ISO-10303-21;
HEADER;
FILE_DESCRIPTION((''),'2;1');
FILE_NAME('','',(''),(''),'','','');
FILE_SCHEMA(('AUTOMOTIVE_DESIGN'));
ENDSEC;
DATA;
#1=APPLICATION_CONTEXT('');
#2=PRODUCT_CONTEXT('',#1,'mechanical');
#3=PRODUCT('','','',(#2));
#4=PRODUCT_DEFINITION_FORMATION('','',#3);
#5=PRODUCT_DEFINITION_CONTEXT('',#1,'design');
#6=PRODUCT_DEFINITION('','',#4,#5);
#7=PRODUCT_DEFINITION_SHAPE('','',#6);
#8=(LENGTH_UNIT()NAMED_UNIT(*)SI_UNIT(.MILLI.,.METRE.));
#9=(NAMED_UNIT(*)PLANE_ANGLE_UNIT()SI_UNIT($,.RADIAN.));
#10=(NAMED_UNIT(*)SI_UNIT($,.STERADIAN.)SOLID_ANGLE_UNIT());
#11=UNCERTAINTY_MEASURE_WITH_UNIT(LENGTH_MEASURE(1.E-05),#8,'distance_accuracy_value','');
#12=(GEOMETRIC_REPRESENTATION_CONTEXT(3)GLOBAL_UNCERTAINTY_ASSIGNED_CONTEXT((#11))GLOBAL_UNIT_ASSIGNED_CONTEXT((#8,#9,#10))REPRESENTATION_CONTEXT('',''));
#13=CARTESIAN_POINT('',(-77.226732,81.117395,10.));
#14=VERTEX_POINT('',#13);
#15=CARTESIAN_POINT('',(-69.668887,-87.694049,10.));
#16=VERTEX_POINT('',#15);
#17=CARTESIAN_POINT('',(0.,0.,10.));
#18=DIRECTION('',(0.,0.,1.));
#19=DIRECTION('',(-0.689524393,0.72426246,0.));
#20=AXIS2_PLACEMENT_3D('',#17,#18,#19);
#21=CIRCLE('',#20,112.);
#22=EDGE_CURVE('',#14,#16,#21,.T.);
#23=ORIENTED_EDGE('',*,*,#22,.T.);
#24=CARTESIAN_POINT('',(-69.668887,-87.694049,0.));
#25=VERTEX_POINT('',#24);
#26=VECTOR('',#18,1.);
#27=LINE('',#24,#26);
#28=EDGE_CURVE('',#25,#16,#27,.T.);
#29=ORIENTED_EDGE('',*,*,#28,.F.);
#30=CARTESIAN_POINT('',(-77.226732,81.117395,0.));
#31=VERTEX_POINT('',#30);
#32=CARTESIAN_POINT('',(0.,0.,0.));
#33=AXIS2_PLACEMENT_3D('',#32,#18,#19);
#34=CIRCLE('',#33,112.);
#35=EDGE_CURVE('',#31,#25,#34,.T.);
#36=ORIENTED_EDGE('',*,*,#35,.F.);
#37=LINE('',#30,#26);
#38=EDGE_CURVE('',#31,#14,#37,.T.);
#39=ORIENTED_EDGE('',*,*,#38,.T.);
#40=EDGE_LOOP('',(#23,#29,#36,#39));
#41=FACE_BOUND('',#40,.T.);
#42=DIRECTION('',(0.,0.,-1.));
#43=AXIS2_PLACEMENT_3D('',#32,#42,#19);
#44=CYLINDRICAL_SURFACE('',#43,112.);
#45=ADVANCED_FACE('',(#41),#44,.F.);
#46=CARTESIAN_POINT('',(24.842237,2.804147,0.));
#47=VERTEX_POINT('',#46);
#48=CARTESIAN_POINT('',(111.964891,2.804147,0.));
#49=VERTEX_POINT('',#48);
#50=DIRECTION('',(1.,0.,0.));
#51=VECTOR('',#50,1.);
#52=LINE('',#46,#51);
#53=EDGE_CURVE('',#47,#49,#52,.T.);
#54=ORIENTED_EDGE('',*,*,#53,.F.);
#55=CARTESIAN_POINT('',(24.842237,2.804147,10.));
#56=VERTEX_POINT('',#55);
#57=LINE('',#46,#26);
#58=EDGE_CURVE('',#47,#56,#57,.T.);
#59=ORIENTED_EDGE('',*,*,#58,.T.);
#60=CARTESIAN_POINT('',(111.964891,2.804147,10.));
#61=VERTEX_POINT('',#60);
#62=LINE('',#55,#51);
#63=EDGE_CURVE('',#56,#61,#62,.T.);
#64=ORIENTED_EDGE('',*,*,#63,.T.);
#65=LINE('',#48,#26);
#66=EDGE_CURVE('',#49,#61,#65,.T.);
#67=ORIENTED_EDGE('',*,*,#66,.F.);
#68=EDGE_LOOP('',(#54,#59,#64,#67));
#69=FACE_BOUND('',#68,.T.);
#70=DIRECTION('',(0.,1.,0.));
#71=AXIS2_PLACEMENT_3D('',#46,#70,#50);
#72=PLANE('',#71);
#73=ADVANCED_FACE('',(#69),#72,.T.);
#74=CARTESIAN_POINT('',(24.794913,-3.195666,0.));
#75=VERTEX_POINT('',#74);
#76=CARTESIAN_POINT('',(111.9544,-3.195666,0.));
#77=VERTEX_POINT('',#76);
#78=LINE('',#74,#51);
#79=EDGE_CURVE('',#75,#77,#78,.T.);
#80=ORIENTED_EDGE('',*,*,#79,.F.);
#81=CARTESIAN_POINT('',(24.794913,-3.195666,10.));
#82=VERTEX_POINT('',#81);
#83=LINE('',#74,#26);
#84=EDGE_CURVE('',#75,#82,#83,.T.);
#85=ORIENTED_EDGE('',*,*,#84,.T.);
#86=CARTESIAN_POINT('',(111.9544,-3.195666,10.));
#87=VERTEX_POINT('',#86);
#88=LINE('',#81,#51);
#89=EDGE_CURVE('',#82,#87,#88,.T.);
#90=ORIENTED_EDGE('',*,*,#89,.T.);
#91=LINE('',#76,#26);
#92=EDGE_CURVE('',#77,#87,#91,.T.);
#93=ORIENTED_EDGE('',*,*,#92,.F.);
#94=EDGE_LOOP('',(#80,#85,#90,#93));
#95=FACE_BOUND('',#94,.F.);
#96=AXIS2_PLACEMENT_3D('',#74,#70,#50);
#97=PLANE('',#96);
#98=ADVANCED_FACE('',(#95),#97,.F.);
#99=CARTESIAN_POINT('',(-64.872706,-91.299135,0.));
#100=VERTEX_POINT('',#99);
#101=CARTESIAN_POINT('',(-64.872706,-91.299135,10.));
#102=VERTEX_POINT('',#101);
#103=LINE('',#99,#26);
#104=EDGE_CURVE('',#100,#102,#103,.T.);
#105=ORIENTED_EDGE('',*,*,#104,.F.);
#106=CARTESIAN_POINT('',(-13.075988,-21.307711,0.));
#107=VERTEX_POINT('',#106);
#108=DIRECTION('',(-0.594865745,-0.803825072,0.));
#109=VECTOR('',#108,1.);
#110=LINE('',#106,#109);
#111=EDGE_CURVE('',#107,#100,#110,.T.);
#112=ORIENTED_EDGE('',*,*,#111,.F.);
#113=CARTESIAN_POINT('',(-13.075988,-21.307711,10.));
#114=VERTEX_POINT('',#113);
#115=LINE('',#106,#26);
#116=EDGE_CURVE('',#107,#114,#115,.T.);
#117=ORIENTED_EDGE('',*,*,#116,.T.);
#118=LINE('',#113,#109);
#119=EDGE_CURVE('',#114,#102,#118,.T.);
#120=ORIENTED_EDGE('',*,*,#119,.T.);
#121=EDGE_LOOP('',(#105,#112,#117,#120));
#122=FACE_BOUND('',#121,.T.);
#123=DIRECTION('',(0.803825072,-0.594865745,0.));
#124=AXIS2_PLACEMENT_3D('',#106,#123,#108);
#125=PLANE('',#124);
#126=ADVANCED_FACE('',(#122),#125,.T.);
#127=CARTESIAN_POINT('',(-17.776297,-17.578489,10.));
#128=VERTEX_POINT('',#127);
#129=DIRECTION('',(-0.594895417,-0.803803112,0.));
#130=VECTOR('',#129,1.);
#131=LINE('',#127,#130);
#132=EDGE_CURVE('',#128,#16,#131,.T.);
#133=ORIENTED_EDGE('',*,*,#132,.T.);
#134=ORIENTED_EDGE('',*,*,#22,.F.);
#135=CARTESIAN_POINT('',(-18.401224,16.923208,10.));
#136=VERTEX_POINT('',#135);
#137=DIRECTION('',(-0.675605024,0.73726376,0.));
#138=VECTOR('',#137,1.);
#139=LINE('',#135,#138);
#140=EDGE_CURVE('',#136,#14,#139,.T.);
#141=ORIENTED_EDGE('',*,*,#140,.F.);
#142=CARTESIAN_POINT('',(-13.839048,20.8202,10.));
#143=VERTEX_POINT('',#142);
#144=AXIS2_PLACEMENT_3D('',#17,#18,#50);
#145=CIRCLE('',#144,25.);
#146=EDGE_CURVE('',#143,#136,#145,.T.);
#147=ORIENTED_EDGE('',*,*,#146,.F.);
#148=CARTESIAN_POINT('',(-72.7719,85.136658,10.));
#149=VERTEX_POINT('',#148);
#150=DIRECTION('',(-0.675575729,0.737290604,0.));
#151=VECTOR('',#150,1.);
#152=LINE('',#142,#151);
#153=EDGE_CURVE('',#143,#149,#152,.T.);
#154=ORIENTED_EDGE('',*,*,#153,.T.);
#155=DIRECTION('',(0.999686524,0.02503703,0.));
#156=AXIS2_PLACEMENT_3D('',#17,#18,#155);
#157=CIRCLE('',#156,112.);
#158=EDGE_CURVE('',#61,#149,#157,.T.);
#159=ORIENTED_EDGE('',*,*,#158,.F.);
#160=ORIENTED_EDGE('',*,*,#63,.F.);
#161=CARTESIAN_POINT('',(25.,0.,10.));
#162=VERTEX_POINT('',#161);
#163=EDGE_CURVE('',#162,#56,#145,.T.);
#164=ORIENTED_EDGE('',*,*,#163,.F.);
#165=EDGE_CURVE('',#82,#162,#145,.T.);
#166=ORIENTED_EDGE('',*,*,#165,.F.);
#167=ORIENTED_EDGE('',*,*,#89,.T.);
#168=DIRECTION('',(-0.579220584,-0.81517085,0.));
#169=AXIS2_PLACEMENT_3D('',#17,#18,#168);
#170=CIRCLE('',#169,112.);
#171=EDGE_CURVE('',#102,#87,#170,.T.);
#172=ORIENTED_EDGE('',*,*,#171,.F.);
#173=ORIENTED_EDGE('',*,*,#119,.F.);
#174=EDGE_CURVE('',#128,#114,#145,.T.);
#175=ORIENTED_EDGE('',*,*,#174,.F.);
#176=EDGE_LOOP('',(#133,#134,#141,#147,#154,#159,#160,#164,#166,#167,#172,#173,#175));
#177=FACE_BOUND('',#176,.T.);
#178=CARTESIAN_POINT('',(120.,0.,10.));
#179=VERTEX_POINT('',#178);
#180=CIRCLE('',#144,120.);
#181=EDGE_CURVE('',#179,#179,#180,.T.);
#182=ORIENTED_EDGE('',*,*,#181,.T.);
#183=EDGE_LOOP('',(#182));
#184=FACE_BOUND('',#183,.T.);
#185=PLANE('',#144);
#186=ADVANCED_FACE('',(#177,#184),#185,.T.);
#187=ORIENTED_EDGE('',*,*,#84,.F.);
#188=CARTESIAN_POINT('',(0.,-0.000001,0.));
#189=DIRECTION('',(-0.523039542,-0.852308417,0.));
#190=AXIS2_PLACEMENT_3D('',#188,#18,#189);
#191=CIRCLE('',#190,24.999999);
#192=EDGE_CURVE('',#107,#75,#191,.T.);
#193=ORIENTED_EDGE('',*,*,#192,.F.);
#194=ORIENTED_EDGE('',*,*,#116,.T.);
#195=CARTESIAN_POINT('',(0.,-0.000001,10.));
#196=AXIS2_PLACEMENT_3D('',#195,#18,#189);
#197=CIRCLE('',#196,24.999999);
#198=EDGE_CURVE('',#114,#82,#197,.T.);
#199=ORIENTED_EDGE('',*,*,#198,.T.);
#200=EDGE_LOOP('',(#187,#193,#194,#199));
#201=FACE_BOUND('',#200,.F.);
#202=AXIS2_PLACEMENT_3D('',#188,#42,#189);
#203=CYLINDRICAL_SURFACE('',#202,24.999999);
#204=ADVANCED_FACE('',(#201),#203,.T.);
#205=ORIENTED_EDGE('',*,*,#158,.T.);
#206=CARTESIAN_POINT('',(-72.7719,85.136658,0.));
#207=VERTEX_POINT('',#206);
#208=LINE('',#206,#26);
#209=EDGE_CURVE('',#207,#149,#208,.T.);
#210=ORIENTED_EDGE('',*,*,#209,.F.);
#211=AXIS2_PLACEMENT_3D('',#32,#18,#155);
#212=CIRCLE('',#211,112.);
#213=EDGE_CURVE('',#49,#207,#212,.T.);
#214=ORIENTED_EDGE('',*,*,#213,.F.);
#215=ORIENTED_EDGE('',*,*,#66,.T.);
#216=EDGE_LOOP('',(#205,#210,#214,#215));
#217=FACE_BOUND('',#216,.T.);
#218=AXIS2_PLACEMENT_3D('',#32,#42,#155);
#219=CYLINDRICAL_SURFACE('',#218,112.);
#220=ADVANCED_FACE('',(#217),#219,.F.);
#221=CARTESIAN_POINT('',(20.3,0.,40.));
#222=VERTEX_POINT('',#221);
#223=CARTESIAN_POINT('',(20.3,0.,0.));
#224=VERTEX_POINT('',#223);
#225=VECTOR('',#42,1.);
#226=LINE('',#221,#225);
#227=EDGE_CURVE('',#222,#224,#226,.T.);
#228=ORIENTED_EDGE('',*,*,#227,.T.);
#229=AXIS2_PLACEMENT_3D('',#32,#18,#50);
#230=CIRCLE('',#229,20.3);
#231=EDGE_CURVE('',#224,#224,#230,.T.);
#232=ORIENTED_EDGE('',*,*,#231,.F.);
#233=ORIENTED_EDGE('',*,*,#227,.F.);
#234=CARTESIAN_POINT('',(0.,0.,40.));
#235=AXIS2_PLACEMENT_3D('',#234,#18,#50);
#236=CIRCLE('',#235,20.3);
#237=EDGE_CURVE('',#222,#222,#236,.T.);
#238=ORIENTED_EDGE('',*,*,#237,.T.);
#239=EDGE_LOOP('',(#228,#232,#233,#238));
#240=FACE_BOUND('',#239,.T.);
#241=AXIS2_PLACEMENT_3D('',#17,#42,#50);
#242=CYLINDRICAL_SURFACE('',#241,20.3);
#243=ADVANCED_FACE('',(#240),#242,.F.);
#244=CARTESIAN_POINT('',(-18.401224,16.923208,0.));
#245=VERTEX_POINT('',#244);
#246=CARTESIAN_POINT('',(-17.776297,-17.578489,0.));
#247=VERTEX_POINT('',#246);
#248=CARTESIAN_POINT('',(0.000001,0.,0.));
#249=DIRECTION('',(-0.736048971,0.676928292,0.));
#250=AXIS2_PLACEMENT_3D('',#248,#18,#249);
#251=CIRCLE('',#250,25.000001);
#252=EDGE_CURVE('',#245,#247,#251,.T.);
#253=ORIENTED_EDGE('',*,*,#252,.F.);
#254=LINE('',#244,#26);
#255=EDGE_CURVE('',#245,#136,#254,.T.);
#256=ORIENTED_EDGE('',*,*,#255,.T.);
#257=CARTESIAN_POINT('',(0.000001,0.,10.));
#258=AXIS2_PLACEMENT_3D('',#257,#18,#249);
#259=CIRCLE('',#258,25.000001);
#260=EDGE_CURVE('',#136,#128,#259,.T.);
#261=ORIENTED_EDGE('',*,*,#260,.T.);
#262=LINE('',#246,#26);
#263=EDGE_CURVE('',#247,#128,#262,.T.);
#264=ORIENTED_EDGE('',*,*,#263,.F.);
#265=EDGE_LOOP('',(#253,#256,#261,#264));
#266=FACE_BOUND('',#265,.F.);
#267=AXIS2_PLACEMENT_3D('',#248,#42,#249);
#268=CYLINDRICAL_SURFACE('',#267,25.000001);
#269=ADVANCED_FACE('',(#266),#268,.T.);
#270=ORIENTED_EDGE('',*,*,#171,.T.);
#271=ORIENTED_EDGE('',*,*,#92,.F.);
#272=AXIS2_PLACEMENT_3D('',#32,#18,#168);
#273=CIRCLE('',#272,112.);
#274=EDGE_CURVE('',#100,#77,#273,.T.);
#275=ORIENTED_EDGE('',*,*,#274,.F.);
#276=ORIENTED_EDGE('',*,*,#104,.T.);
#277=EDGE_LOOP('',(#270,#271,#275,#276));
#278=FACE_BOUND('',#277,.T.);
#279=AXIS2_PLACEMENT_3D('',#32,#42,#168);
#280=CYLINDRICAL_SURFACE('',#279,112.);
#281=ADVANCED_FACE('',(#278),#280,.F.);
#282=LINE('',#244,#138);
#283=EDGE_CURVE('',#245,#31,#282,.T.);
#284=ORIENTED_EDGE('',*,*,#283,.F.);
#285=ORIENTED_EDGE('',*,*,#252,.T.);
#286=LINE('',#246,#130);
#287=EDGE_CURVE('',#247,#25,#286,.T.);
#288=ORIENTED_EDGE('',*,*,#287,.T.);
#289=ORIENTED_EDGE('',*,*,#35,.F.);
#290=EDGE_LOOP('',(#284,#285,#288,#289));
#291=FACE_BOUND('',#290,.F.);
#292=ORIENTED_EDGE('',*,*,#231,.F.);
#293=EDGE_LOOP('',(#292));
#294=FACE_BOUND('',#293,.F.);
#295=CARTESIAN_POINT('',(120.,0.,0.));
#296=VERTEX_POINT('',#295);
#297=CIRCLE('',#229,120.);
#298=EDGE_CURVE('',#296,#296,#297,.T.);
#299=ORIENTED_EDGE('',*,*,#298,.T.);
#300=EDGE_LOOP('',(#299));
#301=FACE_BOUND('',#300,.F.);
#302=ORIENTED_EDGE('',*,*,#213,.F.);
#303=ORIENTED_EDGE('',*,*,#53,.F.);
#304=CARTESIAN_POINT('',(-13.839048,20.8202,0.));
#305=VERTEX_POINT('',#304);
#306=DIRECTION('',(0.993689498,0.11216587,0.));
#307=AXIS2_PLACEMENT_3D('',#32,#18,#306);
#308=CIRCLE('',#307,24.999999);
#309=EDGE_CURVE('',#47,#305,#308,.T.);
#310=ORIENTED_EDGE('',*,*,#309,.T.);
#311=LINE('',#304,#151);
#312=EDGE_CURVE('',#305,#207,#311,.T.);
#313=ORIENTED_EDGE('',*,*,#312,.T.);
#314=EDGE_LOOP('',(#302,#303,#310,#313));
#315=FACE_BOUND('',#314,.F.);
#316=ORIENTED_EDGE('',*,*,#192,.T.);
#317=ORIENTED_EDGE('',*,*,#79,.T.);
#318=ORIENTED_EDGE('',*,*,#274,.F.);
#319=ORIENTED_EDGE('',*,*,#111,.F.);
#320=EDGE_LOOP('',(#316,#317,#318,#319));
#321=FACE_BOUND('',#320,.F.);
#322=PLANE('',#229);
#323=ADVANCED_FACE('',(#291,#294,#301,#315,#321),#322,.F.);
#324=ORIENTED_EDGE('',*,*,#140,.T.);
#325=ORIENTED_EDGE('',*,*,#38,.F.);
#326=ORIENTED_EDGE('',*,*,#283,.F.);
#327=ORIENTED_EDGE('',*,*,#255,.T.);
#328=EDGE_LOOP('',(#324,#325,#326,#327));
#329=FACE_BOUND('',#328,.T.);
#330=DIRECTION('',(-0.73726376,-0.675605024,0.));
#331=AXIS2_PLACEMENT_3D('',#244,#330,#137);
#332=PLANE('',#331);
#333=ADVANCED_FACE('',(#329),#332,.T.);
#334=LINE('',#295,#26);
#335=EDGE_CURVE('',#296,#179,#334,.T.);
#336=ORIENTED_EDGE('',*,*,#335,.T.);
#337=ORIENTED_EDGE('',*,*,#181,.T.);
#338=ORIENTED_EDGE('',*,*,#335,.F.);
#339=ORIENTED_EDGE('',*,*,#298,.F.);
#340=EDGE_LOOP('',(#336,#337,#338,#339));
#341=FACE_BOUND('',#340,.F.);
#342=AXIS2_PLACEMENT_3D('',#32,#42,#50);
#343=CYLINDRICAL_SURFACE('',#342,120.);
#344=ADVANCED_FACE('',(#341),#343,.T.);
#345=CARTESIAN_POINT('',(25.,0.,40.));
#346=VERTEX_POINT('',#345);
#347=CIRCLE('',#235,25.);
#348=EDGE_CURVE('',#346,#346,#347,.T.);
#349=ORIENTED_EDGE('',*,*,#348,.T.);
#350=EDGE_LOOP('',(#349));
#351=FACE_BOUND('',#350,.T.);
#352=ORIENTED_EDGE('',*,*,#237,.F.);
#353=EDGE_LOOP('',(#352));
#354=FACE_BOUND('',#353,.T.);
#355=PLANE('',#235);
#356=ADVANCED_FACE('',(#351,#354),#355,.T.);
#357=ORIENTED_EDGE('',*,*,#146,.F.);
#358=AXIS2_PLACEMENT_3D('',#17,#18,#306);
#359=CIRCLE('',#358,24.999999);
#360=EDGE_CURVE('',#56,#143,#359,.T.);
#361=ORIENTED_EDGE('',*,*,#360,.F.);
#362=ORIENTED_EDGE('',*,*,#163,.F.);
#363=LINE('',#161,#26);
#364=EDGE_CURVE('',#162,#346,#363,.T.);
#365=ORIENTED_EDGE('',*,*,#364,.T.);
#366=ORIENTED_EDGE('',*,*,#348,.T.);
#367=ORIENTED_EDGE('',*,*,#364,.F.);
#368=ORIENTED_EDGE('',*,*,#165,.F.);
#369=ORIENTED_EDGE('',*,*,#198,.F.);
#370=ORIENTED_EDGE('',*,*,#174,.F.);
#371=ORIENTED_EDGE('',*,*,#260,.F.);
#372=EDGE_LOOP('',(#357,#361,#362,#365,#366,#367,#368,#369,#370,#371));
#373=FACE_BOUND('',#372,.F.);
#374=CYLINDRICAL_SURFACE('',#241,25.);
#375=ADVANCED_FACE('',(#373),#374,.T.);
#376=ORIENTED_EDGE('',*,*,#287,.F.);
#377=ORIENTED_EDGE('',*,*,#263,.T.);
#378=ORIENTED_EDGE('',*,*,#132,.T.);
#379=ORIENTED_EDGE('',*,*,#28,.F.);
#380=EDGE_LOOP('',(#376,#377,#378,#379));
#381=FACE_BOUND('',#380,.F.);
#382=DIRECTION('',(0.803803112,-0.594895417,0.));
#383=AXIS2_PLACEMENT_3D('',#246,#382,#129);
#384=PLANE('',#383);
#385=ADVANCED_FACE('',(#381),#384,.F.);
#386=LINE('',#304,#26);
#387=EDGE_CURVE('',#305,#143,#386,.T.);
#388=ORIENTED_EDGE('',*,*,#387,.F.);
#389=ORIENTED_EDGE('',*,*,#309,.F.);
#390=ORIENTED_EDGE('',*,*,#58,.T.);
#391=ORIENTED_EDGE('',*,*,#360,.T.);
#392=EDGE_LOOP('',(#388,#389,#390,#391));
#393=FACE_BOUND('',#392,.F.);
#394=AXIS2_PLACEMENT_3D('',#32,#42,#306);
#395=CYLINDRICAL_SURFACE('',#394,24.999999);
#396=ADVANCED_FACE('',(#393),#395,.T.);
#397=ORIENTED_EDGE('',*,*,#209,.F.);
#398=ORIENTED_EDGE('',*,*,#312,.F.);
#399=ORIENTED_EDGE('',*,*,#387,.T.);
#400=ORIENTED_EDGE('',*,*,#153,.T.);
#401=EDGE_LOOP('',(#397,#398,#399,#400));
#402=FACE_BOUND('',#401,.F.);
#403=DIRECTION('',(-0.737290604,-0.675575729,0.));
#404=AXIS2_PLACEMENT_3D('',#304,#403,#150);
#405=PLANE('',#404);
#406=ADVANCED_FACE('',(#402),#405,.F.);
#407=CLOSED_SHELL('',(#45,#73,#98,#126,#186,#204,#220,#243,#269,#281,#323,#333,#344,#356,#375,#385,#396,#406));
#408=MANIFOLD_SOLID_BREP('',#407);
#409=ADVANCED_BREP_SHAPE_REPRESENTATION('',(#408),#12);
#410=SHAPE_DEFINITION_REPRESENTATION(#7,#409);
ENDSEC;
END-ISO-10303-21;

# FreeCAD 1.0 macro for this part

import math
import FreeCAD as App
import Part
import Sketcher

V = App.Vector

doc = App.newDocument("Part")
body = doc.addObject("PartDesign::Body", "Body")

sketch1 = body.newObject("Sketcher::SketchObject", "Sketch")
sketch1.AttachmentSupport = (doc.getObject("XY_Plane"), [""])
sketch1.MapMode = "FlatFace"
sketch1.addGeometry([
    Part.Circle(V(0, 0, 0), V(0, 0, 1), 120),
    Part.ArcOfCircle(Part.Circle(V(0, 0, 0), V(0, 0, 1), 25), math.radians(137), math.radians(225)),
    Part.LineSegment(V(-18, -18, 0), V(-70, -88, 0)),
    Part.ArcOfCircle(Part.Circle(V(0, 0, 0), V(0, 0, 1), 112), math.radians(134), math.radians(232)),
    Part.LineSegment(V(-77, 81, 0), V(-18, 17, 0)),
    Part.ArcOfCircle(Part.Circle(V(0, 0, 0), V(0, 0, 1), 25), math.radians(-122), math.radians(-7)),
    Part.LineSegment(V(25, -3, 0), V(112, -3, 0)),
    Part.ArcOfCircle(Part.Circle(V(0, 0, 0), V(0, 0, 1), 112), math.radians(-125), math.radians(-2)),
    Part.LineSegment(V(-65, -91, 0), V(-13, -21, 0)),
    Part.Circle(V(0, 0, 0), V(0, 0, 1), 20),
    Part.ArcOfCircle(Part.Circle(V(0, 0, 0), V(0, 0, 1), 112), math.radians(1), math.radians(131)),
    Part.LineSegment(V(112, 3, 0), V(25, 3, 0)),
    Part.ArcOfCircle(Part.Circle(V(0, 0, 0), V(0, 0, 1), 25), math.radians(6), math.radians(124)),
    Part.LineSegment(V(-14, 21, 0), V(-73, 85, 0)),
], False)
sketch1.addConstraint([
    Sketcher.Constraint("Coincident", 1, 2, 2, 1),
    Sketcher.Constraint("Coincident", 2, 2, 3, 2),
    Sketcher.Constraint("Coincident", 3, 1, 4, 1),
    Sketcher.Constraint("Coincident", 4, 2, 1, 1),
    Sketcher.Constraint("Coincident", 5, 2, 6, 1),
    Sketcher.Constraint("Coincident", 6, 2, 7, 2),
    Sketcher.Constraint("Coincident", 7, 1, 8, 1),
    Sketcher.Constraint("Coincident", 8, 2, 5, 1),
    Sketcher.Constraint("Coincident", 10, 1, 11, 1),
    Sketcher.Constraint("Coincident", 11, 2, 12, 1),
    Sketcher.Constraint("Coincident", 12, 2, 13, 1),
    Sketcher.Constraint("Coincident", 13, 2, 10, 2),
    Sketcher.Constraint("Horizontal", 6),
    Sketcher.Constraint("Horizontal", 11),
    Sketcher.Constraint("Coincident", 0, 3, -1, 1),
    Sketcher.Constraint("Coincident", 1, 3, -1, 1),
    Sketcher.Constraint("Coincident", 3, 3, -1, 1),
    Sketcher.Constraint("Coincident", 5, 3, -1, 1),
    Sketcher.Constraint("Coincident", 7, 3, -1, 1),
    Sketcher.Constraint("Coincident", 9, 3, -1, 1),
    Sketcher.Constraint("Coincident", 10, 3, -1, 1),
    Sketcher.Constraint("Coincident", 12, 3, -1, 1),
    Sketcher.Constraint("Equal", 1, 5),
    Sketcher.Constraint("Equal", 3, 7),
    Sketcher.Constraint("Equal", 7, 10),
    Sketcher.Constraint("Equal", 5, 12),
    Sketcher.Constraint("Diameter", 0, 240.0),
    Sketcher.Constraint("Radius", 1, 25.000001),
    Sketcher.Constraint("Radius", 3, 112.0),
    Sketcher.Constraint("Diameter", 9, 40.6),
    Sketcher.Constraint("DistanceX", -1, 1, 6, 2, 111.9544),
    Sketcher.Constraint("DistanceY", -1, 1, 12, 2, 20.8202),
    Sketcher.Constraint("DistanceX", 13, 2, -1, 1, 72.7719),
    Sketcher.Constraint("Distance", 2, 87.229769),
    Sketcher.Constraint("DistanceX", 11, 2, 11, 1, 87.122654),
    Sketcher.Constraint("DistanceY", 1, 2, -1, 1, 17.578489),
    Sketcher.Constraint("DistanceX", 3, 1, -1, 1, 77.226732),
    Sketcher.Constraint("DistanceX", 8, 2, -1, 1, 13.075988),
    Sketcher.Constraint("DistanceY", 3, 3, 4, 2, 16.923208),
    Sketcher.Constraint("DistanceX", 2, 2, 7, 1, 4.796181),
])
pad1 = body.newObject("PartDesign::Pad", "Pad")
pad1.Profile = sketch1
pad1.Length = 10

sketch2 = body.newObject("Sketcher::SketchObject", "Sketch001")
sketch2.AttachmentSupport = (doc.getObject("XY_Plane"), [""])
sketch2.MapMode = "FlatFace"
sketch2.AttachmentOffset = App.Placement(V(0, 0, 10), App.Rotation())
sketch2.addGeometry([
    Part.Circle(V(0, 0, 0), V(0, 0, 1), 25),
    Part.Circle(V(0, 0, 0), V(0, 0, 1), 20),
], False)
sketch2.addConstraint([
    Sketcher.Constraint("Coincident", 0, 3, -1, 1),
    Sketcher.Constraint("Coincident", 1, 3, -1, 1),
    Sketcher.Constraint("Diameter", 0, 50.0),
    Sketcher.Constraint("Diameter", 1, 40.6),
])
pad2 = body.newObject("PartDesign::Pad", "Pad001")
pad2.Profile = sketch2
pad2.Length = 30

doc.recompute()
